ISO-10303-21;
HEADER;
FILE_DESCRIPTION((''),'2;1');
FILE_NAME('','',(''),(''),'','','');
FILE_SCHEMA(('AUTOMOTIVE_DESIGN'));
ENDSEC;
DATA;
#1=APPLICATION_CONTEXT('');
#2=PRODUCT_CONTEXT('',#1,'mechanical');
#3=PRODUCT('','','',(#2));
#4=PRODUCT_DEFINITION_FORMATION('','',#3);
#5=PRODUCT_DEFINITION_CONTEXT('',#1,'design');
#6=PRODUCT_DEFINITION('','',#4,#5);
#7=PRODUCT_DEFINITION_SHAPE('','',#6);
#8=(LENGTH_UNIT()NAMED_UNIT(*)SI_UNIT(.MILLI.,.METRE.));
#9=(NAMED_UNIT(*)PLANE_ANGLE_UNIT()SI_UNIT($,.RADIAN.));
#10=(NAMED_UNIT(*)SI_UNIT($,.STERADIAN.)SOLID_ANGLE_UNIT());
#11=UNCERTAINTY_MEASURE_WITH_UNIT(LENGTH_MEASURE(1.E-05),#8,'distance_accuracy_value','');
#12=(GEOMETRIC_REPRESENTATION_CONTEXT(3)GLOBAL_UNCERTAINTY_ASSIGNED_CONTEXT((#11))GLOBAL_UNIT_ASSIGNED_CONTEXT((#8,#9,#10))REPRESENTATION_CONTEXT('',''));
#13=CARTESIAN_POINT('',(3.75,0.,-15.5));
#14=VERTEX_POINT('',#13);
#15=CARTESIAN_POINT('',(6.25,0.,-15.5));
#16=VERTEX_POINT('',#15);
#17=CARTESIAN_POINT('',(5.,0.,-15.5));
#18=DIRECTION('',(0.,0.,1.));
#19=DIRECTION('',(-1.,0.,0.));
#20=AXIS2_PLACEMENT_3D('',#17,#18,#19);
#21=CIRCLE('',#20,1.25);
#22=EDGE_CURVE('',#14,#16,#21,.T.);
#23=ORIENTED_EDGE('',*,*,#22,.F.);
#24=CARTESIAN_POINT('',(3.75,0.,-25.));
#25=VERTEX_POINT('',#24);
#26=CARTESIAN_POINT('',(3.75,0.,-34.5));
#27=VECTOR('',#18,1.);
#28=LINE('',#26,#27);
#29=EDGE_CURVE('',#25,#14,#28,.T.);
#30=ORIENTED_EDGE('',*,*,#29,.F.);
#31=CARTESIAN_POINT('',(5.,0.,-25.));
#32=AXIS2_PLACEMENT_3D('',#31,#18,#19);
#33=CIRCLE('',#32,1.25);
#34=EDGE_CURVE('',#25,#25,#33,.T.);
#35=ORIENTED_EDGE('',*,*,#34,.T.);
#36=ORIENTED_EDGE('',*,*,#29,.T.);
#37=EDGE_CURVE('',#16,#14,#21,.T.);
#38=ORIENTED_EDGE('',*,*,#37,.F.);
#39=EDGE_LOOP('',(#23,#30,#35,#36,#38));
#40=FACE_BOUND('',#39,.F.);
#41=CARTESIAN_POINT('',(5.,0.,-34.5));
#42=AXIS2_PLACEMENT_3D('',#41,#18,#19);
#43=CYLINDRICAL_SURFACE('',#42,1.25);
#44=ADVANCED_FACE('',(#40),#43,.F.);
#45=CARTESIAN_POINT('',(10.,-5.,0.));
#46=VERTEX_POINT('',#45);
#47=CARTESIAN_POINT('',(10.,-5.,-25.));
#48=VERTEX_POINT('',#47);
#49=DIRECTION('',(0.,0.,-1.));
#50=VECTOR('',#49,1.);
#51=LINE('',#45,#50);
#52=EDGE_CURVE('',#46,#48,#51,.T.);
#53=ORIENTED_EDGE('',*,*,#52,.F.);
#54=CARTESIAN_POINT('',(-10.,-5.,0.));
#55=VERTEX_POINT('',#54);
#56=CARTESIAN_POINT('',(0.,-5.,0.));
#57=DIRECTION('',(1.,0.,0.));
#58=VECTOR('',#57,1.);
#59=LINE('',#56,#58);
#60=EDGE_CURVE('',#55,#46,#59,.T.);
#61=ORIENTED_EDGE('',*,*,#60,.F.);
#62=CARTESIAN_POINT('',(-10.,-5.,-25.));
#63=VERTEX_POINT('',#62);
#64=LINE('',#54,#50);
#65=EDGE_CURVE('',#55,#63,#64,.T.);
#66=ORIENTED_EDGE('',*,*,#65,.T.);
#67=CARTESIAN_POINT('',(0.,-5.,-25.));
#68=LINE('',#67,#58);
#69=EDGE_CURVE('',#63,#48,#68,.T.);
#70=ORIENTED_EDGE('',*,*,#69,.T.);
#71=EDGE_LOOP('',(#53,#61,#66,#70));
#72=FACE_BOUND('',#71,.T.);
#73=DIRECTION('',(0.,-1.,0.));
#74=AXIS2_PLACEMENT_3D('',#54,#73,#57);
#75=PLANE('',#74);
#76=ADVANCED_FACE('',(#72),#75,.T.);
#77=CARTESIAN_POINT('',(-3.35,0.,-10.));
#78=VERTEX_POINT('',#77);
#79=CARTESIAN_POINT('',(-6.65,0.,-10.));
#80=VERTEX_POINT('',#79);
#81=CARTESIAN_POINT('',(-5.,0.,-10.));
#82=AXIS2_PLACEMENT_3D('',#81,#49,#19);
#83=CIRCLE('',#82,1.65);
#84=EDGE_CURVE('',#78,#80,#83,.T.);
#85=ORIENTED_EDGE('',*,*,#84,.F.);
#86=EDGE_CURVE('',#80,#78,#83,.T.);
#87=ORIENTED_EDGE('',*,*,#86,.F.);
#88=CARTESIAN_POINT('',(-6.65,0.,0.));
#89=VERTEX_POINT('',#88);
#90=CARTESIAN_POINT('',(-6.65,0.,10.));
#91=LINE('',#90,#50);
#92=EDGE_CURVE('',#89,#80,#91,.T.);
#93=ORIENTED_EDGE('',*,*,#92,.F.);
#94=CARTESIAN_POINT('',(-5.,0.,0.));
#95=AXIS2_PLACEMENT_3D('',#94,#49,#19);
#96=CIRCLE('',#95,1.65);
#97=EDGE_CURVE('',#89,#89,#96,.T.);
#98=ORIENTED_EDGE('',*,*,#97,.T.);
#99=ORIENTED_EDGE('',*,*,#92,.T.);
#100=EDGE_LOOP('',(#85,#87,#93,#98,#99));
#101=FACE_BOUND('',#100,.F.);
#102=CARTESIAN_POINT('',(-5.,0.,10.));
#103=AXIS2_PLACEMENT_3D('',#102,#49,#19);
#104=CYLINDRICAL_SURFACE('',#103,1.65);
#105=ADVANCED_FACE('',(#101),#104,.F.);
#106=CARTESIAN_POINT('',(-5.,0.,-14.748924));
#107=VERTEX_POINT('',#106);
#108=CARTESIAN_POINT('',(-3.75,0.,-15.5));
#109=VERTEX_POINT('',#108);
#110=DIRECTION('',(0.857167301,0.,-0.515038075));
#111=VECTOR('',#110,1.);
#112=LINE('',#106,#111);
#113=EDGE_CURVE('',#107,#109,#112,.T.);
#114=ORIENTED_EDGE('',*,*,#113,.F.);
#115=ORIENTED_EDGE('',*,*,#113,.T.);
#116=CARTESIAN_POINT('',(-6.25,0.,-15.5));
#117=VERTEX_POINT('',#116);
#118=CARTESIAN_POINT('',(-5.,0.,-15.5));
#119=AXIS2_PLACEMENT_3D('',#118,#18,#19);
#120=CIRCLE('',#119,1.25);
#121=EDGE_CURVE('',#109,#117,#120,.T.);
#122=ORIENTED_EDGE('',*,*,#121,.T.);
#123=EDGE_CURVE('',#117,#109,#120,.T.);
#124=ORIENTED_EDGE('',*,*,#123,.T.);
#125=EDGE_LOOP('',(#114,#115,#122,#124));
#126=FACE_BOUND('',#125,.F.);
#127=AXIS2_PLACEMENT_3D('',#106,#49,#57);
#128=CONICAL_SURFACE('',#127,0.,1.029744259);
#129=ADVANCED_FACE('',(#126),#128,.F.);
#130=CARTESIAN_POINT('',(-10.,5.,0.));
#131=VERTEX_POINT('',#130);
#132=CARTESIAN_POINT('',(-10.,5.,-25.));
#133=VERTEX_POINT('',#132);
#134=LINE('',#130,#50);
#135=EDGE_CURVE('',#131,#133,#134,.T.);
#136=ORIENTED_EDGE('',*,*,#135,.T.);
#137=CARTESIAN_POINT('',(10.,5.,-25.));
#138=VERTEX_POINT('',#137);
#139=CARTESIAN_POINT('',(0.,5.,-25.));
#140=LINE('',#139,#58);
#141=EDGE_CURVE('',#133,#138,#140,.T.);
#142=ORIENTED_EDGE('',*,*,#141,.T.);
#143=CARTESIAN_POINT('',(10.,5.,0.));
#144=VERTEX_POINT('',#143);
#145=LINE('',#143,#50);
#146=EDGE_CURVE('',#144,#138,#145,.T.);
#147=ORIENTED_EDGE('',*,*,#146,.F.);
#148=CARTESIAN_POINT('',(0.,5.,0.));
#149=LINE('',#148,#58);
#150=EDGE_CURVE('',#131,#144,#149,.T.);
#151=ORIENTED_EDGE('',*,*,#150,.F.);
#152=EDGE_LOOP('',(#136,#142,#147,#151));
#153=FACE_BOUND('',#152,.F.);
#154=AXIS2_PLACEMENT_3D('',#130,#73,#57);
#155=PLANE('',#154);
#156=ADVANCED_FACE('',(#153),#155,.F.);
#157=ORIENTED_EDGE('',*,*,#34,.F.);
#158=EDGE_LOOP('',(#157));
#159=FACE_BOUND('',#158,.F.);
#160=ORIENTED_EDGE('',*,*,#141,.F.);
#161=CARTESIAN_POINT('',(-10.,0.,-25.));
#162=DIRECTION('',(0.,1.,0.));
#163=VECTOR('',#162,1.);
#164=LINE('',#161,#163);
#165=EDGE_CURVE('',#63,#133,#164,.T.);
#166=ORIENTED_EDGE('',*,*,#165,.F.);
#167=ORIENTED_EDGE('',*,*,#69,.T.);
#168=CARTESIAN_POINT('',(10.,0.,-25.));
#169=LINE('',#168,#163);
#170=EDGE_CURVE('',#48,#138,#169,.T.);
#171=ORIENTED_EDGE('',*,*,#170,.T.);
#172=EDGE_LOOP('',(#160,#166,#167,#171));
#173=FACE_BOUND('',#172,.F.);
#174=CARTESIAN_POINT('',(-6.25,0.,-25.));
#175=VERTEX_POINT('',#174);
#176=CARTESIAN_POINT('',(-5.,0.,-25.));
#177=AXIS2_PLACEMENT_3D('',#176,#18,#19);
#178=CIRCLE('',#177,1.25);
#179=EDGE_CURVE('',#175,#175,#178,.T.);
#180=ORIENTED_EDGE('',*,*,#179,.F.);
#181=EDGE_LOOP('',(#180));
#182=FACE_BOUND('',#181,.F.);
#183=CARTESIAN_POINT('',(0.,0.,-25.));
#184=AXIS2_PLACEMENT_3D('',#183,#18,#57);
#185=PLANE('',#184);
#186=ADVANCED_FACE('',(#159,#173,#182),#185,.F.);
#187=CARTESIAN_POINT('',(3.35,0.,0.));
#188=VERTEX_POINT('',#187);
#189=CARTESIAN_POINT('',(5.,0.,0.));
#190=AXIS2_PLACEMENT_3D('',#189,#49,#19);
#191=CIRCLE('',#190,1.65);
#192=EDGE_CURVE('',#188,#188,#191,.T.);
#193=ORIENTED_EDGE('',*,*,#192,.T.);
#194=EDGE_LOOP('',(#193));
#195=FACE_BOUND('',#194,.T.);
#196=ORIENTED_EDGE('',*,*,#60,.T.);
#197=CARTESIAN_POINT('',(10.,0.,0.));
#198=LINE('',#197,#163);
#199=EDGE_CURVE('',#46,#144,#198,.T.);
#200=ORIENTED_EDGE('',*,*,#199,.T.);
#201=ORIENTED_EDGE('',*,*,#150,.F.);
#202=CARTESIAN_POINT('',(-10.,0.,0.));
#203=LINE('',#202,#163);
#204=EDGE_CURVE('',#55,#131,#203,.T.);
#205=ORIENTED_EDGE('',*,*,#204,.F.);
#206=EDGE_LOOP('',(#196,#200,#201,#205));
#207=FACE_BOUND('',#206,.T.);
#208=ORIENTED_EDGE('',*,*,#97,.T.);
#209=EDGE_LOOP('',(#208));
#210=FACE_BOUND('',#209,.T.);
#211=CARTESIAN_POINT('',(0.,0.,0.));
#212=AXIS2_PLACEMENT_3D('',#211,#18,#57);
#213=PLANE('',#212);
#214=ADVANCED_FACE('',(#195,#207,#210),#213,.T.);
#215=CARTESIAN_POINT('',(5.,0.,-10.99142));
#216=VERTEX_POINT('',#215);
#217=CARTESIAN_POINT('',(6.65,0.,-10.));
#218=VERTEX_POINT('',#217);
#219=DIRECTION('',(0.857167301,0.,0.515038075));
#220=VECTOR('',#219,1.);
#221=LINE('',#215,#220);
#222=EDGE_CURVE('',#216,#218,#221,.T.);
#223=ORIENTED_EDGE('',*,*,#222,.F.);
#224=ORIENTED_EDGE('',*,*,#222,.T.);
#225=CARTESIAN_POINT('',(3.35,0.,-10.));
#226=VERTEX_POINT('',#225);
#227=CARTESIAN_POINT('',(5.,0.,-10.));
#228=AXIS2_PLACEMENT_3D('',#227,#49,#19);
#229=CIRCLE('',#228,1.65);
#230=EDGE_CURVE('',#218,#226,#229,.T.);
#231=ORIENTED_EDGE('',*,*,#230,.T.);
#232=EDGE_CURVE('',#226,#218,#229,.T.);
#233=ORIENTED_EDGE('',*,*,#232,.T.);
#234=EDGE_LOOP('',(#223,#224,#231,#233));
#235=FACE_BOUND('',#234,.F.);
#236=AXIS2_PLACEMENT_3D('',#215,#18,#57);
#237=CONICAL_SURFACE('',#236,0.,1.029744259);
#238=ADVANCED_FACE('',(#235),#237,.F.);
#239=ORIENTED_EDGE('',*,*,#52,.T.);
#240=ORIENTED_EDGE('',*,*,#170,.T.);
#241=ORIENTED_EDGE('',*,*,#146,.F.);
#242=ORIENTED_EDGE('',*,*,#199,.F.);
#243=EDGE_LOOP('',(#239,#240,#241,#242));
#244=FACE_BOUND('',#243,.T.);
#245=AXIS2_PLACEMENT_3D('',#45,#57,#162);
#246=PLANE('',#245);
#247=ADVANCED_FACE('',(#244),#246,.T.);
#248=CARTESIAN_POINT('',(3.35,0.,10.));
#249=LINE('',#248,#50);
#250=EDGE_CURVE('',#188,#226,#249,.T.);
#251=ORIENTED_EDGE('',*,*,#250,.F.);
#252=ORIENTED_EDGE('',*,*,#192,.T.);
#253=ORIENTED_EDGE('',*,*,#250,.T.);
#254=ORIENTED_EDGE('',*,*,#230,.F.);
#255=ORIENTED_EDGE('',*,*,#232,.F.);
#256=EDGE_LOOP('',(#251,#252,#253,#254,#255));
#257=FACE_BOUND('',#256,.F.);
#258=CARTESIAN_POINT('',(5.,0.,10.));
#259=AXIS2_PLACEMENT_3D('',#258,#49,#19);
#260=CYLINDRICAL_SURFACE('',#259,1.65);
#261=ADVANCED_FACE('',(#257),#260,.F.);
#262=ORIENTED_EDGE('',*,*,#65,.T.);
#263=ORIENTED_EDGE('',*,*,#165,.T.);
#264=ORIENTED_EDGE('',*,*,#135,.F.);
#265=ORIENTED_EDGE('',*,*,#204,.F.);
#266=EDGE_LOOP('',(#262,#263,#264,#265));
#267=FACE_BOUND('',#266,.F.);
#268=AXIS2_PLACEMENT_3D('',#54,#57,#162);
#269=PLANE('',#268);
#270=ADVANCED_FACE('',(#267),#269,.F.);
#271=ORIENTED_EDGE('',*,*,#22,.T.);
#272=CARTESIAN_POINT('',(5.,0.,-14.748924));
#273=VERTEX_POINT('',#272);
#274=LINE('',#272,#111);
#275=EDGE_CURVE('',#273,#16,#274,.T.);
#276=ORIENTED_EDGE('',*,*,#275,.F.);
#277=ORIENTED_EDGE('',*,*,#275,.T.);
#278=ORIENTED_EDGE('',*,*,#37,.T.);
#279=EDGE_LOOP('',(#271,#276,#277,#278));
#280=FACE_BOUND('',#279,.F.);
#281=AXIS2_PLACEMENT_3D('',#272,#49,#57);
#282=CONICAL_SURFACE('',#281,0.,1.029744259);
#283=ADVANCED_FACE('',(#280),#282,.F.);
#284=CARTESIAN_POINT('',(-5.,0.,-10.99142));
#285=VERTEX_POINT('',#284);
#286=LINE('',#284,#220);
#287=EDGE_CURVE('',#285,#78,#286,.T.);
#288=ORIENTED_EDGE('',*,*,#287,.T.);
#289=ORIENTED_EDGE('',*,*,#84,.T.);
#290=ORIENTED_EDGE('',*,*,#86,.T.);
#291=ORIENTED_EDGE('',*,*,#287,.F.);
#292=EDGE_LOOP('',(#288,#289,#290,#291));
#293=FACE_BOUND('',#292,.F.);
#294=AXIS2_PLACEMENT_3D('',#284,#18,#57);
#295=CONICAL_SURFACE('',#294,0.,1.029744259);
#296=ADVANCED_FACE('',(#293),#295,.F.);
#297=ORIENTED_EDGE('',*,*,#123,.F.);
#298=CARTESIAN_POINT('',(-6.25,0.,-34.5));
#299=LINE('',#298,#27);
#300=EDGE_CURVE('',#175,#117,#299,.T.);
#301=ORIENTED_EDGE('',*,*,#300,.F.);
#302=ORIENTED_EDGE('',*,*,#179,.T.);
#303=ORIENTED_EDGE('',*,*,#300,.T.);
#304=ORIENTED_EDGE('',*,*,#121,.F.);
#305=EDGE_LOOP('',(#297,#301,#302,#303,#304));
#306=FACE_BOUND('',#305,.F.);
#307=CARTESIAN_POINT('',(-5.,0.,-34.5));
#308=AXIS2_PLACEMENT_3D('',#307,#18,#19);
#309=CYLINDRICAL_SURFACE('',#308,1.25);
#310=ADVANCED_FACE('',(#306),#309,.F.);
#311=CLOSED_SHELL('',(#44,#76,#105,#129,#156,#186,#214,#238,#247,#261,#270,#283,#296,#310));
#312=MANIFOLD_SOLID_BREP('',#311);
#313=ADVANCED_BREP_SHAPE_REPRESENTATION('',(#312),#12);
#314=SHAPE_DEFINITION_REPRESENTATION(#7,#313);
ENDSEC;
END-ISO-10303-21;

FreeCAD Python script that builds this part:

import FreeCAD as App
import Part
import Sketcher
from FreeCAD import Vector
Q = App.Units.Quantity

doc = App.newDocument("Part")
body = doc.addObject("PartDesign::Body", "Body")

# Sketch on XY plane
sketch1 = doc.addObject("Sketcher::SketchObject", "Sketch")
body.addObject(sketch1)
sketch1.AttachmentSupport = (doc.XY_Plane, [""])
sketch1.MapMode = "FlatFace"
sketch1.addGeometry(Part.LineSegment(Vector(-10, 5, 0), Vector(-10, -5, 0)), False)
sketch1.addGeometry(Part.LineSegment(Vector(-10, -5, 0), Vector(10, -5, 0)), False)
sketch1.addGeometry(Part.LineSegment(Vector(10, -5, 0), Vector(10, 5, 0)), False)
sketch1.addGeometry(Part.LineSegment(Vector(10, 5, 0), Vector(-10, 5, 0)), False)
sketch1.addConstraint(Sketcher.Constraint("Coincident", 0, 2, 1, 1))
sketch1.addConstraint(Sketcher.Constraint("Coincident", 1, 2, 2, 1))
sketch1.addConstraint(Sketcher.Constraint("Coincident", 2, 2, 3, 1))
sketch1.addConstraint(Sketcher.Constraint("Coincident", 3, 2, 0, 1))
sketch1.addConstraint(Sketcher.Constraint("Vertical", 0))
sketch1.addConstraint(Sketcher.Constraint("Horizontal", 1))
sketch1.addConstraint(Sketcher.Constraint("Vertical", 2))
sketch1.addConstraint(Sketcher.Constraint("Horizontal", 3))
sketch1.addConstraint(Sketcher.Constraint("Symmetric", 0, 2, 2, 2, -1, 1))
sketch1.addConstraint(Sketcher.Constraint("DistanceX", 1, 1, 1, 2, Q("20 mm")))
sketch1.addConstraint(Sketcher.Constraint("DistanceY", 0, 2, 0, 1, Q("10 mm")))
pad1 = doc.addObject("PartDesign::Pad", "Pad")
body.addObject(pad1)
pad1.Profile = sketch1
pad1.Length = 25
pad1.Reversed = True

# Sketch on XY plane
sketch2 = doc.addObject("Sketcher::SketchObject", "Sketch001")
body.addObject(sketch2)
sketch2.AttachmentSupport = (doc.XY_Plane, [""])
sketch2.MapMode = "FlatFace"
sketch2.AttachmentOffset = App.Placement(Vector(0, 0, -25), App.Rotation())
sketch2.addGeometry(Part.Circle(Vector(-5, 0, 0), Vector(0, 0, 1), 1.25), False)
sketch2.addGeometry(Part.Circle(Vector(5, 0, 0), Vector(0, 0, 1), 1.25), False)
sketch2.addConstraint(Sketcher.Constraint("Equal", 0, 1))
sketch2.addConstraint(Sketcher.Constraint("Symmetric", 0, 3, 1, 3, -1, 1))
sketch2.addConstraint(Sketcher.Constraint("PointOnObject", 0, 3, -1))
sketch2.addConstraint(Sketcher.Constraint("Diameter", 0, Q("2.5 mm")))
sketch2.addConstraint(Sketcher.Constraint("DistanceX", 0, 3, -1, 1, Q("5 mm")))
doc.recompute()
hole = doc.addObject("PartDesign::Hole", "Hole")
body.addObject(hole)
hole.Profile = sketch2
hole.ThreadType = "None"
hole.Diameter = 2.5
hole.DepthType = "Dimension"
hole.Depth = 9.5
hole.DrillPoint = "Angled"
hole.DrillPointAngle = 118
hole.Reversed = True

# Sketch on XY plane
sketch3 = doc.addObject("Sketcher::SketchObject", "Sketch002")
body.addObject(sketch3)
sketch3.AttachmentSupport = (doc.XY_Plane, [""])
sketch3.MapMode = "FlatFace"
sketch3.addGeometry(Part.Circle(Vector(-5, 0, 0), Vector(0, 0, 1), 1.65), False)
sketch3.addGeometry(Part.Circle(Vector(5, 0, 0), Vector(0, 0, 1), 1.65), False)
sketch3.addConstraint(Sketcher.Constraint("Equal", 0, 1))
sketch3.addConstraint(Sketcher.Constraint("Symmetric", 0, 3, 1, 3, -1, 1))
sketch3.addConstraint(Sketcher.Constraint("PointOnObject", 0, 3, -1))
sketch3.addConstraint(Sketcher.Constraint("Diameter", 0, Q("3.3 mm")))
sketch3.addConstraint(Sketcher.Constraint("DistanceX", 0, 3, -1, 1, Q("5 mm")))
doc.recompute()
hole2 = doc.addObject("PartDesign::Hole", "Hole001")
body.addObject(hole2)
hole2.Profile = sketch3
hole2.ThreadType = "None"
hole2.Diameter = 3.3
hole2.DepthType = "Dimension"
hole2.Depth = 10
hole2.DrillPoint = "Angled"
hole2.DrillPointAngle = 118

doc.recompute()
